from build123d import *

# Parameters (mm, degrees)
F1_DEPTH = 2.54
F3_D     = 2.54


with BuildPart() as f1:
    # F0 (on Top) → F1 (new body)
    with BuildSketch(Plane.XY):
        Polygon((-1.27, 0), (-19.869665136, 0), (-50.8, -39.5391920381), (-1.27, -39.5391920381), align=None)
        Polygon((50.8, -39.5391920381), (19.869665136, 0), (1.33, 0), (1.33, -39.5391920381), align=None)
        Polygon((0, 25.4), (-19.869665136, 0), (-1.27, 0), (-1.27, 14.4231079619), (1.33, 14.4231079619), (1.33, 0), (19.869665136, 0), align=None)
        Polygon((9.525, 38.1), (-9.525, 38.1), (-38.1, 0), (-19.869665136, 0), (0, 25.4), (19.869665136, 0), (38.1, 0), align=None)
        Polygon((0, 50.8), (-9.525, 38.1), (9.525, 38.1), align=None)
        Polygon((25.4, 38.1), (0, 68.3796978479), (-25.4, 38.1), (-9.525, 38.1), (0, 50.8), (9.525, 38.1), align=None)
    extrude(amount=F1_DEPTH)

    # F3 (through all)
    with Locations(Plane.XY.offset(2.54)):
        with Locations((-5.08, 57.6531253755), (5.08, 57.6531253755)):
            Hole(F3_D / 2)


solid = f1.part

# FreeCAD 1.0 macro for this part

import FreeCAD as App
import Part
import Sketcher
Q = App.Units.Quantity


def add_polygon(sketch, points):
    """Adds a closed chain of lines whose ends are joined by coincident constraints."""
    first, n = sketch.GeometryCount, len(points)
    for a, b in zip(points, points[1:] + points[:1]):
        sketch.addGeometry(Part.LineSegment(App.Vector(*a, 0), App.Vector(*b, 0)), False)
    for i in range(n):
        sketch.addConstraint(Sketcher.Constraint("Coincident", first + i, 2, first + (i + 1) % n, 1))

doc = App.newDocument("Part")
body = doc.addObject("PartDesign::Body", "Body")

# Sketch on XY plane
sketch1 = doc.addObject("Sketcher::SketchObject", "Sketch")
body.addObject(sketch1)
sketch1.AttachmentSupport = (doc.XY_Plane, [""])
sketch1.MapMode = "FlatFace"
add_polygon(sketch1, [(-50.8, -39.5), (-1.3, -39.5), (-1.3, 14.4), (1.3, 14.4), (1.3, -39.5), (50.8, -39.5), (19.9, 0), (38.1, 0), (9.5, 38.1), (25.4, 38.1), (0, 68.4), (-25.4, 38.1), (-9.5, 38.1), (-38.1, 0), (-19.9, 0)])  # lines 0-14
sketch1.addConstraint([
    Sketcher.Constraint("Horizontal", 0),
    Sketcher.Constraint("Vertical", 1),
    Sketcher.Constraint("Horizontal", 2),
    Sketcher.Constraint("Vertical", 3),
    Sketcher.Constraint("Horizontal", 4),
    Sketcher.Constraint("Horizontal", 6),
    Sketcher.Constraint("Horizontal", 8),
    Sketcher.Constraint("Horizontal", 11),
    Sketcher.Constraint("Horizontal", 13),
    Sketcher.Constraint("Symmetric", 6, 2, 12, 2, -1, 1),
    Sketcher.Constraint("Symmetric", 8, 2, 10, 2, -2),
    Sketcher.Constraint("Symmetric", 5, 2, 13, 2, -2),
    Sketcher.Constraint("Symmetric", 4, 2, 14, 2, -2),
    Sketcher.Constraint("PointOnObject", 9, 2, -2),
    Sketcher.Constraint("Equal", 8, 11),
    Sketcher.Constraint("DistanceX", -1, 1, 4, 2, Q("2 in")),
    Sketcher.Constraint("DistanceX", -1, 1, 8, 2, Q("1 in")),
    Sketcher.Constraint("DistanceX", 0, 1, 0, 2, Q("1.95 in")),
    Sketcher.Constraint("DistanceX", -1, 1, 6, 2, Q("1.5 in")),
    Sketcher.Constraint("DistanceY", -1, 1, 7, 2, Q("1.5 in")),
    Sketcher.Constraint("DistanceX", 8, 1, 8, 2, Q("0.625 in")),
    Sketcher.Constraint("Distance", 9, Q("1.556 in")),
    Sketcher.Constraint("DistanceY", 1, 1, 1, 2, Q("2.1245 in")),
    Sketcher.Constraint("DistanceX", 2, 1, 2, 2, Q("2.6 mm")),
    Sketcher.Constraint("DistanceX", 6, 1, 6, 2, Q("18.230335 mm")),
    Sketcher.Constraint("DistanceY", 1, 2, 9, 2, Q("53.95659 mm")),
])
pad1 = doc.addObject("PartDesign::Pad", "Pad")
body.addObject(pad1)
pad1.Profile = sketch1
pad1.Length = Q("0.1 in")

# Sketch on XY plane
sketch2 = doc.addObject("Sketcher::SketchObject", "Sketch001")
body.addObject(sketch2)
sketch2.AttachmentSupport = (doc.XY_Plane, [""])
sketch2.MapMode = "FlatFace"
sketch2.AttachmentOffset = App.Placement(App.Vector(0, 0, 0.1 * 25.4), App.Rotation())
sketch2.addGeometry([
    Part.Circle(App.Vector(-5.1, 57.7, 0), App.Vector(0, 0, 1), 1.3),
    Part.Circle(App.Vector(5.1, 57.7, 0), App.Vector(0, 0, 1), 1.3),
], False)
sketch2.addConstraint([
    Sketcher.Constraint("Equal", 0, 1),
    Sketcher.Constraint("Symmetric", 0, 3, 1, 3, -2),
    Sketcher.Constraint("Diameter", 0, Q("0.1 in")),
    Sketcher.Constraint("DistanceX", 0, 3, -1, 1, Q("0.2 in")),
    Sketcher.Constraint("DistanceY", -1, 1, 0, 3, Q("57.653125 mm")),
])
doc.recompute()
hole = doc.addObject("PartDesign::Hole", "Hole")
body.addObject(hole)
hole.Profile = sketch2
hole.ThreadType = "None"
hole.Diameter = Q("0.1 in")
hole.DepthType = "ThroughAll"

doc.recompute()
